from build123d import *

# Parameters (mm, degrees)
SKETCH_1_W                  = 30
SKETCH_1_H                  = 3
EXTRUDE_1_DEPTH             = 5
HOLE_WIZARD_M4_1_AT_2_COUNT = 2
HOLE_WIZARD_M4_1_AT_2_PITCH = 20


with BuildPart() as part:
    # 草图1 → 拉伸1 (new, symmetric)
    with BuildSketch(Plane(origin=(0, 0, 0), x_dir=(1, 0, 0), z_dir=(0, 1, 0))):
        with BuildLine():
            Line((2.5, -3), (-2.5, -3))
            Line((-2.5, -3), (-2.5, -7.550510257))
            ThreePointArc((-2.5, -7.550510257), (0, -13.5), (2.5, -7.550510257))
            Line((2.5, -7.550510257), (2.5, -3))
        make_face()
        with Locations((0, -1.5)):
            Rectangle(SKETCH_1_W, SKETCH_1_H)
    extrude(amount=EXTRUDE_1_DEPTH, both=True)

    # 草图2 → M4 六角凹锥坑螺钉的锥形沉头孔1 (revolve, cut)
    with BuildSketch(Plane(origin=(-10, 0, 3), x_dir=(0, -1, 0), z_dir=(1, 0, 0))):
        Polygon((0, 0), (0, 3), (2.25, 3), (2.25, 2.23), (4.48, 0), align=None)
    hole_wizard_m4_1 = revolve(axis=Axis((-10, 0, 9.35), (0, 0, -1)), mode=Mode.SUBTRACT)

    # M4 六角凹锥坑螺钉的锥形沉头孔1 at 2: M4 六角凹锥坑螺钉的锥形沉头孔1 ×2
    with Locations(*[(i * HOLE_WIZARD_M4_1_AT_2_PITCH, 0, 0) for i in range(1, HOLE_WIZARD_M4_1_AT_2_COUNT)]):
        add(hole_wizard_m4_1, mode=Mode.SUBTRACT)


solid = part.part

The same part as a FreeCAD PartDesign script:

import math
import FreeCAD as App
import Part
import Sketcher
from FreeCAD import Vector
Q = App.Units.Quantity

doc = App.newDocument("Part")
body = doc.addObject("PartDesign::Body", "Body")

# Sketch on XZ plane
sketch1 = body.newObject("Sketcher::SketchObject", "Sketch")
sketch1.AttachmentSupport = (doc.getObject("XZ_Plane"), [""])
sketch1.MapMode = "FlatFace"
sketch1.addGeometry([
    Part.LineSegment(Vector(-2.5, 3, 0), Vector(-2.5, 7.6, 0)),  # 0
    Part.ArcOfCircle(Part.Circle(Vector(0, 10, 0), Vector(0, 0, 1), 3.5), math.radians(-44), math.radians(224)),  # 1
    Part.LineSegment(Vector(2.5, 7.6, 0), Vector(2.5, 3, 0)),  # 2
    Part.LineSegment(Vector(2.5, 3, 0), Vector(15, 3, 0)),  # 3
    Part.LineSegment(Vector(15, 3, 0), Vector(15, 0, 0)),  # 4
    Part.LineSegment(Vector(15, 0, 0), Vector(-15, 0, 0)),  # 5
    Part.LineSegment(Vector(-15, 0, 0), Vector(-15, 3, 0)),  # 6
    Part.LineSegment(Vector(-15, 3, 0), Vector(-2.5, 3, 0)),  # 7
], False)
sketch1.addConstraint([
    Sketcher.Constraint("Coincident", 0, 2, 1, 2),
    Sketcher.Constraint("Coincident", 1, 1, 2, 1),
    Sketcher.Constraint("Coincident", 2, 2, 3, 1),
    Sketcher.Constraint("Coincident", 3, 2, 4, 1),
    Sketcher.Constraint("Coincident", 4, 2, 5, 1),
    Sketcher.Constraint("Coincident", 5, 2, 6, 1),
    Sketcher.Constraint("Coincident", 6, 2, 7, 1),
    Sketcher.Constraint("Coincident", 7, 2, 0, 1),
    Sketcher.Constraint("Vertical", 0),
    Sketcher.Constraint("Vertical", 2),
    Sketcher.Constraint("Horizontal", 3),
    Sketcher.Constraint("Vertical", 4),
    Sketcher.Constraint("Horizontal", 5),
    Sketcher.Constraint("Vertical", 6),
    Sketcher.Constraint("Horizontal", 7),
    Sketcher.Constraint("Symmetric", 4, 2, 5, 2, -1, 1),
    Sketcher.Constraint("Symmetric", 0, 2, 1, 1, -2),
    Sketcher.Constraint("Horizontal", 3, 2, 6, 2),
    Sketcher.Constraint("Radius", 1, 3.5),
    Sketcher.Constraint("DistanceX", 5, 2, 5, 1, 30.0),
    Sketcher.Constraint("DistanceY", 4, 2, 4, 1, 3.0),
    Sketcher.Constraint("DistanceX", 3, 1, 3, 2, 12.5),
    Sketcher.Constraint("DistanceY", -1, 1, 1, 3, 10.0),
])
pad1 = body.newObject("PartDesign::Pad", "Pad")
pad1.Profile = sketch1
pad1.Length = 10
pad1.Midplane = True

# Sketch on YZ plane
sketch2 = body.newObject("Sketcher::SketchObject", "Sketch001")
sketch2.AttachmentSupport = (doc.getObject("YZ_Plane"), [""])
sketch2.MapMode = "FlatFace"
sketch2.AttachmentOffset = App.Placement(Vector(0, 0, -10), App.Rotation())
sketch2.addGeometry([
    Part.LineSegment(Vector(0, 0, 0), Vector(0, 3, 0)),  # 0
    Part.LineSegment(Vector(0, 3, 0), Vector(-4.5, 3, 0)),  # 1
    Part.LineSegment(Vector(-4.5, 3, 0), Vector(-2.2, 0.8, 0)),  # 2
    Part.LineSegment(Vector(-2.2, 0.8, 0), Vector(-2.2, 0, 0)),  # 3
    Part.LineSegment(Vector(-2.2, 0, 0), Vector(0, 0, 0)),  # 4
], False)
sketch2.addConstraint([
    Sketcher.Constraint("Coincident", 0, 2, 1, 1),
    Sketcher.Constraint("Coincident", 1, 2, 2, 1),
    Sketcher.Constraint("Coincident", 2, 2, 3, 1),
    Sketcher.Constraint("Coincident", 3, 2, 4, 1),
    Sketcher.Constraint("Coincident", 4, 2, 0, 1),
    Sketcher.Constraint("Vertical", 0),
    Sketcher.Constraint("Horizontal", 1),
    Sketcher.Constraint("Vertical", 3),
    Sketcher.Constraint("Horizontal", 4),
    Sketcher.Constraint("Coincident", 4, 2, -1, 1),
    Sketcher.Constraint("DistanceY", 0, 1, 0, 2, 3.0),
    Sketcher.Constraint("Angle", 2, Q("-45 deg")),
    Sketcher.Constraint("DistanceX", 1, 2, 1, 1, 4.48),
    Sketcher.Constraint("DistanceX", 4, 1, 4, 2, 2.25),
])
groove = body.newObject("PartDesign::Groove", "Groove")
groove.Profile = sketch2
groove.ReferenceAxis = (sketch2, ["V_Axis"])
groove.Angle = 360
doc.recompute()

linearpattern = body.newObject("PartDesign::LinearPattern", "LinearPattern")
linearpattern.Originals = [groove]
linearpattern.Direction = (doc.getObject("X_Axis"), [""])
linearpattern.Mode = "offset"
linearpattern.Offset = 20
linearpattern.Occurrences = 2
body.Tip = linearpattern

doc.recompute()
